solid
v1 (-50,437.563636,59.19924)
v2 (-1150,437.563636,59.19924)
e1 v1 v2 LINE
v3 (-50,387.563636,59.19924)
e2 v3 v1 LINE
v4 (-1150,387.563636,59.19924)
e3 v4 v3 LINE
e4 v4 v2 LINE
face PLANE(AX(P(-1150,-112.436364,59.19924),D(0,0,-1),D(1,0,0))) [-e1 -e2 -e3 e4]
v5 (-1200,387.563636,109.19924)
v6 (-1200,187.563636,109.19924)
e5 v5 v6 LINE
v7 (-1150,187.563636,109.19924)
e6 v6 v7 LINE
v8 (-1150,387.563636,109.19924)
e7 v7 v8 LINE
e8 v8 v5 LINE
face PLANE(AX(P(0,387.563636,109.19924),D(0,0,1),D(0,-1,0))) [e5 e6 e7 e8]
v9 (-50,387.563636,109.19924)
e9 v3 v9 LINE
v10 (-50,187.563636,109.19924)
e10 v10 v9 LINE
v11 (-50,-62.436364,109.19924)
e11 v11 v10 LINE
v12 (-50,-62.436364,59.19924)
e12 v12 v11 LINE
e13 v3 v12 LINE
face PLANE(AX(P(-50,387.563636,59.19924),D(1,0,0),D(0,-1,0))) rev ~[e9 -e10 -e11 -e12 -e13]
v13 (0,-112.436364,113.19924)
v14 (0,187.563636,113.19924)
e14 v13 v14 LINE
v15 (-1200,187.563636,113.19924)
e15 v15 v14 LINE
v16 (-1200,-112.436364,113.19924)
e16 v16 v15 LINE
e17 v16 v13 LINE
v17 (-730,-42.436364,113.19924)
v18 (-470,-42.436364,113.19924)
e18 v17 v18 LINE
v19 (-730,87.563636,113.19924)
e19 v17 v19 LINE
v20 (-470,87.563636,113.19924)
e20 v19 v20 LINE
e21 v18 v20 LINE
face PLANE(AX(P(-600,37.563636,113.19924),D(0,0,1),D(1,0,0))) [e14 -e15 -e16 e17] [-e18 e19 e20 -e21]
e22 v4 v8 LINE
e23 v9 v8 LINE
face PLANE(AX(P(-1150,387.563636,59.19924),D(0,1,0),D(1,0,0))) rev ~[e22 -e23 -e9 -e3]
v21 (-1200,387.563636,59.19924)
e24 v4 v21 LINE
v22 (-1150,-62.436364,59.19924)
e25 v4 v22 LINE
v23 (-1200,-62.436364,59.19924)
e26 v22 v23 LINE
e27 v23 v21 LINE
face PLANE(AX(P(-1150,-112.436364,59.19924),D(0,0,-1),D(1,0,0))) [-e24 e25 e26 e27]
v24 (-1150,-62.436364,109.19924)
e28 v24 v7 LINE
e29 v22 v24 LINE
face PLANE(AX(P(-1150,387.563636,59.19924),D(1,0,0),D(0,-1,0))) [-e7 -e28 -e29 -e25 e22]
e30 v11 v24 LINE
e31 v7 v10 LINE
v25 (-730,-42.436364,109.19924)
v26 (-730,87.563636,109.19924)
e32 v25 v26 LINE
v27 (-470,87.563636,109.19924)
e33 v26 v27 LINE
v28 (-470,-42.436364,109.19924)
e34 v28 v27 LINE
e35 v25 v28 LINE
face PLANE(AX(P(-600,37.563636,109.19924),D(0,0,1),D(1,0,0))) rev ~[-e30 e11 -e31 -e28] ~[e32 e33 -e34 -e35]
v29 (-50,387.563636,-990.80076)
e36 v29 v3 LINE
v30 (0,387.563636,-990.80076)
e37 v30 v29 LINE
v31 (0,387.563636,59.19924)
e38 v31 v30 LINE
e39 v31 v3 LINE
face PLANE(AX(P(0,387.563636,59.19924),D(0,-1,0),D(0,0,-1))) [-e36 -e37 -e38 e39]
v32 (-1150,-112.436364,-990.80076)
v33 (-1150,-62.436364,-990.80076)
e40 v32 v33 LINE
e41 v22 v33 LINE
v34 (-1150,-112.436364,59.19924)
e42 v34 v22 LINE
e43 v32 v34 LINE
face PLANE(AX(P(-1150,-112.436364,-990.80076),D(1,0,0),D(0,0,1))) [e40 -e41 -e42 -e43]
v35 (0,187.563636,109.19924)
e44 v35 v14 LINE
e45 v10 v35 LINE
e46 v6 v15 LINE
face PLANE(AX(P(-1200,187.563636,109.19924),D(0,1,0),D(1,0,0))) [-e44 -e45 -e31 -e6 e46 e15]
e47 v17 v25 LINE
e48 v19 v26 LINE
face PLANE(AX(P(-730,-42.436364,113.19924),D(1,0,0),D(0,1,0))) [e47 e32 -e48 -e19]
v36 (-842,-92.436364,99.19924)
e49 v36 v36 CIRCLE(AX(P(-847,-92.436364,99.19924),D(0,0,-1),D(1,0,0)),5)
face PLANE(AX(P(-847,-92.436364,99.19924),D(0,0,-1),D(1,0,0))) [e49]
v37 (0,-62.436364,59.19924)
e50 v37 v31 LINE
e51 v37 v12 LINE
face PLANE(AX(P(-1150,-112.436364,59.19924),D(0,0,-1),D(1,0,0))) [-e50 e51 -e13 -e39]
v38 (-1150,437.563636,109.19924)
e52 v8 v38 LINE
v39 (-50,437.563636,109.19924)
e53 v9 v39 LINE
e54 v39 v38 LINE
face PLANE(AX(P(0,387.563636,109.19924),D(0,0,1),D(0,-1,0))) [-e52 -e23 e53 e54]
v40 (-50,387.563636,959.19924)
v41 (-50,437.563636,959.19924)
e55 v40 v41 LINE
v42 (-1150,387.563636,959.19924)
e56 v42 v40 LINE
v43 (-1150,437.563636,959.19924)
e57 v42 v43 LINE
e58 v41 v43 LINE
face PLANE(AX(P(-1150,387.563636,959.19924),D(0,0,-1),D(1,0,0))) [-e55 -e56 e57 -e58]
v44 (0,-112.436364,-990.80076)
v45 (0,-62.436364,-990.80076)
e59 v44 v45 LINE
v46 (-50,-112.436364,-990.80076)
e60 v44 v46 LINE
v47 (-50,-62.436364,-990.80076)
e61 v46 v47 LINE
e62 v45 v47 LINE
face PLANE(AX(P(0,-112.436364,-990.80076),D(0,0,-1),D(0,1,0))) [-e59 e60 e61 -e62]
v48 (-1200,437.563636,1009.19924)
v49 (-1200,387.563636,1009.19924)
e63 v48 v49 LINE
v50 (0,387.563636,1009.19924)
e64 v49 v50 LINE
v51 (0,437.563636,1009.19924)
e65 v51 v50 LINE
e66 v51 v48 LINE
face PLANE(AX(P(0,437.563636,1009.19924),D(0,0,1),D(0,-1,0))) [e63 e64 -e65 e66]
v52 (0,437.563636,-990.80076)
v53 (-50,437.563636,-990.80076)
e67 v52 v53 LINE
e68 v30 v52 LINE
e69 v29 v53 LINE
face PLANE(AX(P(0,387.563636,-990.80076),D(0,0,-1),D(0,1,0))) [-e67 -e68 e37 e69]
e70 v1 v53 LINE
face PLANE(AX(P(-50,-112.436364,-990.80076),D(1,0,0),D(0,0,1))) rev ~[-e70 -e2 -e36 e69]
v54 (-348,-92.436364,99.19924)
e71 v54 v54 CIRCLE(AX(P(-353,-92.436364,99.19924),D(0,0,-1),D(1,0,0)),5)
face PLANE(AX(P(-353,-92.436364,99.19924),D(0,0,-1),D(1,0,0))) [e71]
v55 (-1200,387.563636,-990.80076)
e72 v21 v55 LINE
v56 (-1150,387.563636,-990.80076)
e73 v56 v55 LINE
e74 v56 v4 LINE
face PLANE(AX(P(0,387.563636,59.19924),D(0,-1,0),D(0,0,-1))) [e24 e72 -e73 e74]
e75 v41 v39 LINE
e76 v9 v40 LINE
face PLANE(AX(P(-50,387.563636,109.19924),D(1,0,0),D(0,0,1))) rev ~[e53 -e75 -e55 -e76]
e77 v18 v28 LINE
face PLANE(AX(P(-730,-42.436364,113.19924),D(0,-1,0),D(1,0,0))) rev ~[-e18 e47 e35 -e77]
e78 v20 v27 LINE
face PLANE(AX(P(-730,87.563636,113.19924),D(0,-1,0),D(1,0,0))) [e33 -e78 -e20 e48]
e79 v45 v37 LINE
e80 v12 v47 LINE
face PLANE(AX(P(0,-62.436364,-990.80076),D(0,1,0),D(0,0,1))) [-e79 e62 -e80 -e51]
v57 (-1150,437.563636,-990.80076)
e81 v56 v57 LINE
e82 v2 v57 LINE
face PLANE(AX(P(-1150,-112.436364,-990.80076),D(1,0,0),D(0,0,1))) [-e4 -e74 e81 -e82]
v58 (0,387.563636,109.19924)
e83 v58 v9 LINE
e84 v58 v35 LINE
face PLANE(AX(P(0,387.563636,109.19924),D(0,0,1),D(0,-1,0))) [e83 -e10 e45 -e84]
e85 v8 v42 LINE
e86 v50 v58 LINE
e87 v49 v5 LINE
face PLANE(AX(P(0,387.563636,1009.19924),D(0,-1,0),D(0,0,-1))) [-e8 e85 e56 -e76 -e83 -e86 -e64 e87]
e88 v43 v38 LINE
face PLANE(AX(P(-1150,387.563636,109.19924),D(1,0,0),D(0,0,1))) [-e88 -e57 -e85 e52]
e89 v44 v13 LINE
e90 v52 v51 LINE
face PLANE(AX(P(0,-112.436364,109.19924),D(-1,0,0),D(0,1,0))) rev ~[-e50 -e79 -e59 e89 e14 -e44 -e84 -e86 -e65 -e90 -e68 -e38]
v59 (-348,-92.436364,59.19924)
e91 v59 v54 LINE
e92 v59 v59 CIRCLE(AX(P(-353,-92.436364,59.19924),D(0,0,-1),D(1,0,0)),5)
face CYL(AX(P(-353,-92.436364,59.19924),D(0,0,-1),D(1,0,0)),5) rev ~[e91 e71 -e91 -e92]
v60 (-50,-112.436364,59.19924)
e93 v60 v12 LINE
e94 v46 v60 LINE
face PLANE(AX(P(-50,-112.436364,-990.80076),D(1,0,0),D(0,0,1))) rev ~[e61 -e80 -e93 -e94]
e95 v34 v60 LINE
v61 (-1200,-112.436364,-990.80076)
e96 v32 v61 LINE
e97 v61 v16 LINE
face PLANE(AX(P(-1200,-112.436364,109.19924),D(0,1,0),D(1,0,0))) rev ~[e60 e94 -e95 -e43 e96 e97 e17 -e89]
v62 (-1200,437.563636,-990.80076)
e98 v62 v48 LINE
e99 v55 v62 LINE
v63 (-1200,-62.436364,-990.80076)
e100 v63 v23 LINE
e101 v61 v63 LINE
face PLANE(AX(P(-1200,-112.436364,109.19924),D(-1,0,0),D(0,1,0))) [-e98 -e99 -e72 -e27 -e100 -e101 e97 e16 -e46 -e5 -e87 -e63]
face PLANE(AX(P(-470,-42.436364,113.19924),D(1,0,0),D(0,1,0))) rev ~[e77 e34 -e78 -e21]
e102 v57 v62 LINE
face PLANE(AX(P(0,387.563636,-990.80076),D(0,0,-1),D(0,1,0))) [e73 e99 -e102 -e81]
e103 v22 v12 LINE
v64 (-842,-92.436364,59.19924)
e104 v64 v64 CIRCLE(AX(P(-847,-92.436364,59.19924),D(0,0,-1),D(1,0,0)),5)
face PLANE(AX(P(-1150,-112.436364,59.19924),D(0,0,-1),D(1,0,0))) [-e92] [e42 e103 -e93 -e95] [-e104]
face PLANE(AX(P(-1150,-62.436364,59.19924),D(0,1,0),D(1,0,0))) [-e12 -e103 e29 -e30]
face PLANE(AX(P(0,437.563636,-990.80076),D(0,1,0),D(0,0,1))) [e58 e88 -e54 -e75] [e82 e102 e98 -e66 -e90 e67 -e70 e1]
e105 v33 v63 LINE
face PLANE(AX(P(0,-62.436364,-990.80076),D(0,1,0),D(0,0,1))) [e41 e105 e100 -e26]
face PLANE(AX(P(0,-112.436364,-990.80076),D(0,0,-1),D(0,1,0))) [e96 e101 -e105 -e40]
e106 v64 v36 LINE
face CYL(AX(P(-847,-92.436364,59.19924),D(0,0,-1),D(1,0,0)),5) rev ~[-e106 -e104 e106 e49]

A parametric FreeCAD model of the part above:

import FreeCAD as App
import Part
import Sketcher

V = App.Vector
Q = App.Units.Quantity


def add_polygon(sketch, points):
    """Adds a closed chain of lines whose ends are joined by coincident constraints."""
    first, n = sketch.GeometryCount, len(points)
    for a, b in zip(points, points[1:] + points[:1]):
        sketch.addGeometry(Part.LineSegment(App.Vector(*a, 0), App.Vector(*b, 0)), False)
    for i in range(n):
        sketch.addConstraint(Sketcher.Constraint("Coincident", first + i, 2, first + (i + 1) % n, 1))

doc = App.newDocument("Part")
body = doc.addObject("PartDesign::Body", "Body")

# Sketch on YZ plane
sketch1 = doc.addObject("Sketcher::SketchObject", "Sketch")
body.addObject(sketch1)
sketch1.AttachmentSupport = (doc.YZ_Plane, [""])
sketch1.MapMode = "FlatFace"
add_polygon(sketch1, [(-112, 109), (-112, -991), (-62, -991), (-62, 59), (388, 59), (388, -991), (438, -991), (438, 1009), (388, 1009), (388, 109)])  # lines 0-9
sketch1.addConstraint([
    Sketcher.Constraint("Vertical", 0),
    Sketcher.Constraint("Horizontal", 1),
    Sketcher.Constraint("Vertical", 2),
    Sketcher.Constraint("Horizontal", 3),
    Sketcher.Constraint("Vertical", 4),
    Sketcher.Constraint("Horizontal", 5),
    Sketcher.Constraint("Vertical", 6),
    Sketcher.Constraint("Horizontal", 7),
    Sketcher.Constraint("Vertical", 8),
    Sketcher.Constraint("Horizontal", 9),
    Sketcher.Constraint("Horizontal", 1, 2, 4, 2),
    Sketcher.Constraint("Vertical", 4, 2, 7, 2),
    Sketcher.Constraint("Equal", 1, 5),
    Sketcher.Constraint("DistanceX", 1, 1, 1, 2, Q("50 mm")),
    Sketcher.Constraint("DistanceX", 3, 1, 3, 2, Q("450 mm")),
    Sketcher.Constraint("DistanceY", 0, 2, 0, 1, Q("1100 mm")),
    Sketcher.Constraint("DistanceY", 2, 1, 2, 2, Q("1050 mm")),
    Sketcher.Constraint("DistanceY", 6, 1, 6, 2, Q("2000 mm")),
    Sketcher.Constraint("DistanceY", 0, 2, -1, 1, Q("990.80076 mm")),
    Sketcher.Constraint("DistanceX", 0, 2, -1, 1, Q("112.436364 mm")),
])
pad1 = doc.addObject("PartDesign::Pad", "Pad")
body.addObject(pad1)
pad1.Profile = sketch1
pad1.Length = 1200
pad1.Reversed = True

# Sketch on XZ plane
sketch2 = doc.addObject("Sketcher::SketchObject", "Sketch001")
body.addObject(sketch2)
sketch2.AttachmentSupport = (doc.XZ_Plane, [""])
sketch2.MapMode = "FlatFace"
sketch2.AttachmentOffset = App.Placement(V(0, 0, 112.436364), App.Rotation())
add_polygon(sketch2, [(-1150, 59), (-1150, -991), (-50, -991), (-50, 59)])  # lines 0-3
sketch2.addConstraint([
    Sketcher.Constraint("Vertical", 0),
    Sketcher.Constraint("Horizontal", 1),
    Sketcher.Constraint("Vertical", 2),
    Sketcher.Constraint("Horizontal", 3),
    Sketcher.Constraint("DistanceX", 1, 1, 1, 2, Q("1100 mm")),
    Sketcher.Constraint("DistanceY", 0, 2, 0, 1, Q("1050 mm")),
    Sketcher.Constraint("DistanceX", 0, 2, -1, 1, Q("1150 mm")),
    Sketcher.Constraint("DistanceY", 0, 2, -1, 1, Q("990.80076 mm")),
])
pocket1 = doc.addObject("PartDesign::Pocket", "Pocket")
body.addObject(pocket1)
pocket1.Profile = sketch2
pocket1.Type = "ThroughAll"

# Sketch on XZ plane
sketch3 = doc.addObject("Sketcher::SketchObject", "Sketch002")
body.addObject(sketch3)
sketch3.AttachmentSupport = (doc.XZ_Plane, [""])
sketch3.MapMode = "FlatFace"
sketch3.AttachmentOffset = App.Placement(V(0, 0, -387.563636), App.Rotation())
add_polygon(sketch3, [(-1150, 959), (-1150, 109), (-50, 109), (-50, 959)])  # lines 0-3
sketch3.addConstraint([
    Sketcher.Constraint("Vertical", 0),
    Sketcher.Constraint("Horizontal", 1),
    Sketcher.Constraint("Vertical", 2),
    Sketcher.Constraint("Horizontal", 3),
    Sketcher.Constraint("DistanceX", 1, 1, 1, 2, Q("1100 mm")),
    Sketcher.Constraint("DistanceY", 0, 2, 0, 1, Q("850 mm")),
    Sketcher.Constraint("DistanceX", 0, 2, -1, 1, Q("1150 mm")),
    Sketcher.Constraint("DistanceY", -1, 1, 0, 2, Q("109.19924 mm")),
])
pocket2 = doc.addObject("PartDesign::Pocket", "Pocket001")
body.addObject(pocket2)
pocket2.Profile = sketch3
pocket2.Type = "ThroughAll"

# Sketch on XY plane
sketch4 = doc.addObject("Sketcher::SketchObject", "Sketch003")
body.addObject(sketch4)
sketch4.AttachmentSupport = (doc.XY_Plane, [""])
sketch4.MapMode = "FlatFace"
sketch4.AttachmentOffset = App.Placement(V(0, 0, 59.19924), App.Rotation())
sketch4.addGeometry([
    Part.Circle(V(-847, -92, 0), V(0, 0, 1), 5),
    Part.Circle(V(-353, -92, 0), V(0, 0, 1), 5),
], False)
sketch4.addConstraint([
    Sketcher.Constraint("Equal", 0, 1),
    Sketcher.Constraint("Horizontal", 0, 3, 1, 3),
    Sketcher.Constraint("Diameter", 0, Q("10 mm")),
    Sketcher.Constraint("DistanceX", 0, 3, -1, 1, Q("847 mm")),
    Sketcher.Constraint("DistanceX", 1, 3, -1, 1, Q("353 mm")),
    Sketcher.Constraint("DistanceY", 0, 3, -1, 1, Q("92.436364 mm")),
])
pocket3 = doc.addObject("PartDesign::Pocket", "Pocket002")
body.addObject(pocket3)
pocket3.Profile = sketch4
pocket3.Length = 40
pocket3.Reversed = True

# Sketch on XY plane
sketch5 = doc.addObject("Sketcher::SketchObject", "Sketch004")
body.addObject(sketch5)
sketch5.AttachmentSupport = (doc.XY_Plane, [""])
sketch5.MapMode = "FlatFace"
sketch5.AttachmentOffset = App.Placement(V(0, 0, 59.19924), App.Rotation())
add_polygon(sketch5, [(-1150, -62), (-1150, 388), (-50, 388), (-50, -62)])  # lines 0-3
sketch5.addConstraint([
    Sketcher.Constraint("Vertical", 0),
    Sketcher.Constraint("Horizontal", 1),
    Sketcher.Constraint("Vertical", 2),
    Sketcher.Constraint("Horizontal", 3),
    Sketcher.Constraint("DistanceX", 1, 1, 1, 2, Q("1100 mm")),
    Sketcher.Constraint("DistanceY", 0, 1, 0, 2, Q("450 mm")),
    Sketcher.Constraint("DistanceX", 0, 2, -1, 1, Q("1150 mm")),
    Sketcher.Constraint("DistanceY", -1, 1, 0, 2, Q("387.563636 mm")),
])
pocket4 = doc.addObject("PartDesign::Pocket", "Pocket003")
body.addObject(pocket4)
pocket4.Profile = sketch5
pocket4.Type = "ThroughAll"
pocket4.Reversed = True

# Sketch on XY plane
sketch6 = doc.addObject("Sketcher::SketchObject", "Sketch005")
body.addObject(sketch6)
sketch6.AttachmentSupport = (doc.XY_Plane, [""])
sketch6.MapMode = "FlatFace"
sketch6.AttachmentOffset = App.Placement(V(0, 0, 109.19924), App.Rotation())
add_polygon(sketch6, [(-1200, 188), (-1200, -112), (0, -112), (0, 188)])  # lines 0-3
sketch6.addConstraint([
    Sketcher.Constraint("Vertical", 0),
    Sketcher.Constraint("Horizontal", 1),
    Sketcher.Constraint("Vertical", 2),
    Sketcher.Constraint("Horizontal", 3),
    Sketcher.Constraint("PointOnObject", 1, 2, -2),
    Sketcher.Constraint("DistanceX", 1, 1, 1, 2, Q("1200 mm")),
    Sketcher.Constraint("DistanceY", 0, 2, 0, 1, Q("300 mm")),
    Sketcher.Constraint("DistanceY", 0, 2, -1, 1, Q("112.436364 mm")),
])
pad2 = doc.addObject("PartDesign::Pad", "Pad001")
body.addObject(pad2)
pad2.Profile = sketch6
pad2.Length = 4

# Sketch on XY plane
sketch7 = doc.addObject("Sketcher::SketchObject", "Sketch006")
body.addObject(sketch7)
sketch7.AttachmentSupport = (doc.XY_Plane, [""])
sketch7.MapMode = "FlatFace"
sketch7.AttachmentOffset = App.Placement(V(0, 0, 113.19924), App.Rotation())
add_polygon(sketch7, [(-730, 88), (-730, -42), (-470, -42), (-470, 88)])  # lines 0-3
sketch7.addConstraint([
    Sketcher.Constraint("Vertical", 0),
    Sketcher.Constraint("Horizontal", 1),
    Sketcher.Constraint("Vertical", 2),
    Sketcher.Constraint("Horizontal", 3),
    Sketcher.Constraint("DistanceX", 1, 1, 1, 2, Q("260 mm")),
    Sketcher.Constraint("DistanceY", 0, 2, 0, 1, Q("130 mm")),
    Sketcher.Constraint("DistanceX", 0, 2, -1, 1, Q("730 mm")),
    Sketcher.Constraint("DistanceY", 0, 2, -1, 1, Q("42.436364 mm")),
])
pocket5 = doc.addObject("PartDesign::Pocket", "Pocket004")
body.addObject(pocket5)
pocket5.Profile = sketch7
pocket5.Length = 4

doc.recompute()
